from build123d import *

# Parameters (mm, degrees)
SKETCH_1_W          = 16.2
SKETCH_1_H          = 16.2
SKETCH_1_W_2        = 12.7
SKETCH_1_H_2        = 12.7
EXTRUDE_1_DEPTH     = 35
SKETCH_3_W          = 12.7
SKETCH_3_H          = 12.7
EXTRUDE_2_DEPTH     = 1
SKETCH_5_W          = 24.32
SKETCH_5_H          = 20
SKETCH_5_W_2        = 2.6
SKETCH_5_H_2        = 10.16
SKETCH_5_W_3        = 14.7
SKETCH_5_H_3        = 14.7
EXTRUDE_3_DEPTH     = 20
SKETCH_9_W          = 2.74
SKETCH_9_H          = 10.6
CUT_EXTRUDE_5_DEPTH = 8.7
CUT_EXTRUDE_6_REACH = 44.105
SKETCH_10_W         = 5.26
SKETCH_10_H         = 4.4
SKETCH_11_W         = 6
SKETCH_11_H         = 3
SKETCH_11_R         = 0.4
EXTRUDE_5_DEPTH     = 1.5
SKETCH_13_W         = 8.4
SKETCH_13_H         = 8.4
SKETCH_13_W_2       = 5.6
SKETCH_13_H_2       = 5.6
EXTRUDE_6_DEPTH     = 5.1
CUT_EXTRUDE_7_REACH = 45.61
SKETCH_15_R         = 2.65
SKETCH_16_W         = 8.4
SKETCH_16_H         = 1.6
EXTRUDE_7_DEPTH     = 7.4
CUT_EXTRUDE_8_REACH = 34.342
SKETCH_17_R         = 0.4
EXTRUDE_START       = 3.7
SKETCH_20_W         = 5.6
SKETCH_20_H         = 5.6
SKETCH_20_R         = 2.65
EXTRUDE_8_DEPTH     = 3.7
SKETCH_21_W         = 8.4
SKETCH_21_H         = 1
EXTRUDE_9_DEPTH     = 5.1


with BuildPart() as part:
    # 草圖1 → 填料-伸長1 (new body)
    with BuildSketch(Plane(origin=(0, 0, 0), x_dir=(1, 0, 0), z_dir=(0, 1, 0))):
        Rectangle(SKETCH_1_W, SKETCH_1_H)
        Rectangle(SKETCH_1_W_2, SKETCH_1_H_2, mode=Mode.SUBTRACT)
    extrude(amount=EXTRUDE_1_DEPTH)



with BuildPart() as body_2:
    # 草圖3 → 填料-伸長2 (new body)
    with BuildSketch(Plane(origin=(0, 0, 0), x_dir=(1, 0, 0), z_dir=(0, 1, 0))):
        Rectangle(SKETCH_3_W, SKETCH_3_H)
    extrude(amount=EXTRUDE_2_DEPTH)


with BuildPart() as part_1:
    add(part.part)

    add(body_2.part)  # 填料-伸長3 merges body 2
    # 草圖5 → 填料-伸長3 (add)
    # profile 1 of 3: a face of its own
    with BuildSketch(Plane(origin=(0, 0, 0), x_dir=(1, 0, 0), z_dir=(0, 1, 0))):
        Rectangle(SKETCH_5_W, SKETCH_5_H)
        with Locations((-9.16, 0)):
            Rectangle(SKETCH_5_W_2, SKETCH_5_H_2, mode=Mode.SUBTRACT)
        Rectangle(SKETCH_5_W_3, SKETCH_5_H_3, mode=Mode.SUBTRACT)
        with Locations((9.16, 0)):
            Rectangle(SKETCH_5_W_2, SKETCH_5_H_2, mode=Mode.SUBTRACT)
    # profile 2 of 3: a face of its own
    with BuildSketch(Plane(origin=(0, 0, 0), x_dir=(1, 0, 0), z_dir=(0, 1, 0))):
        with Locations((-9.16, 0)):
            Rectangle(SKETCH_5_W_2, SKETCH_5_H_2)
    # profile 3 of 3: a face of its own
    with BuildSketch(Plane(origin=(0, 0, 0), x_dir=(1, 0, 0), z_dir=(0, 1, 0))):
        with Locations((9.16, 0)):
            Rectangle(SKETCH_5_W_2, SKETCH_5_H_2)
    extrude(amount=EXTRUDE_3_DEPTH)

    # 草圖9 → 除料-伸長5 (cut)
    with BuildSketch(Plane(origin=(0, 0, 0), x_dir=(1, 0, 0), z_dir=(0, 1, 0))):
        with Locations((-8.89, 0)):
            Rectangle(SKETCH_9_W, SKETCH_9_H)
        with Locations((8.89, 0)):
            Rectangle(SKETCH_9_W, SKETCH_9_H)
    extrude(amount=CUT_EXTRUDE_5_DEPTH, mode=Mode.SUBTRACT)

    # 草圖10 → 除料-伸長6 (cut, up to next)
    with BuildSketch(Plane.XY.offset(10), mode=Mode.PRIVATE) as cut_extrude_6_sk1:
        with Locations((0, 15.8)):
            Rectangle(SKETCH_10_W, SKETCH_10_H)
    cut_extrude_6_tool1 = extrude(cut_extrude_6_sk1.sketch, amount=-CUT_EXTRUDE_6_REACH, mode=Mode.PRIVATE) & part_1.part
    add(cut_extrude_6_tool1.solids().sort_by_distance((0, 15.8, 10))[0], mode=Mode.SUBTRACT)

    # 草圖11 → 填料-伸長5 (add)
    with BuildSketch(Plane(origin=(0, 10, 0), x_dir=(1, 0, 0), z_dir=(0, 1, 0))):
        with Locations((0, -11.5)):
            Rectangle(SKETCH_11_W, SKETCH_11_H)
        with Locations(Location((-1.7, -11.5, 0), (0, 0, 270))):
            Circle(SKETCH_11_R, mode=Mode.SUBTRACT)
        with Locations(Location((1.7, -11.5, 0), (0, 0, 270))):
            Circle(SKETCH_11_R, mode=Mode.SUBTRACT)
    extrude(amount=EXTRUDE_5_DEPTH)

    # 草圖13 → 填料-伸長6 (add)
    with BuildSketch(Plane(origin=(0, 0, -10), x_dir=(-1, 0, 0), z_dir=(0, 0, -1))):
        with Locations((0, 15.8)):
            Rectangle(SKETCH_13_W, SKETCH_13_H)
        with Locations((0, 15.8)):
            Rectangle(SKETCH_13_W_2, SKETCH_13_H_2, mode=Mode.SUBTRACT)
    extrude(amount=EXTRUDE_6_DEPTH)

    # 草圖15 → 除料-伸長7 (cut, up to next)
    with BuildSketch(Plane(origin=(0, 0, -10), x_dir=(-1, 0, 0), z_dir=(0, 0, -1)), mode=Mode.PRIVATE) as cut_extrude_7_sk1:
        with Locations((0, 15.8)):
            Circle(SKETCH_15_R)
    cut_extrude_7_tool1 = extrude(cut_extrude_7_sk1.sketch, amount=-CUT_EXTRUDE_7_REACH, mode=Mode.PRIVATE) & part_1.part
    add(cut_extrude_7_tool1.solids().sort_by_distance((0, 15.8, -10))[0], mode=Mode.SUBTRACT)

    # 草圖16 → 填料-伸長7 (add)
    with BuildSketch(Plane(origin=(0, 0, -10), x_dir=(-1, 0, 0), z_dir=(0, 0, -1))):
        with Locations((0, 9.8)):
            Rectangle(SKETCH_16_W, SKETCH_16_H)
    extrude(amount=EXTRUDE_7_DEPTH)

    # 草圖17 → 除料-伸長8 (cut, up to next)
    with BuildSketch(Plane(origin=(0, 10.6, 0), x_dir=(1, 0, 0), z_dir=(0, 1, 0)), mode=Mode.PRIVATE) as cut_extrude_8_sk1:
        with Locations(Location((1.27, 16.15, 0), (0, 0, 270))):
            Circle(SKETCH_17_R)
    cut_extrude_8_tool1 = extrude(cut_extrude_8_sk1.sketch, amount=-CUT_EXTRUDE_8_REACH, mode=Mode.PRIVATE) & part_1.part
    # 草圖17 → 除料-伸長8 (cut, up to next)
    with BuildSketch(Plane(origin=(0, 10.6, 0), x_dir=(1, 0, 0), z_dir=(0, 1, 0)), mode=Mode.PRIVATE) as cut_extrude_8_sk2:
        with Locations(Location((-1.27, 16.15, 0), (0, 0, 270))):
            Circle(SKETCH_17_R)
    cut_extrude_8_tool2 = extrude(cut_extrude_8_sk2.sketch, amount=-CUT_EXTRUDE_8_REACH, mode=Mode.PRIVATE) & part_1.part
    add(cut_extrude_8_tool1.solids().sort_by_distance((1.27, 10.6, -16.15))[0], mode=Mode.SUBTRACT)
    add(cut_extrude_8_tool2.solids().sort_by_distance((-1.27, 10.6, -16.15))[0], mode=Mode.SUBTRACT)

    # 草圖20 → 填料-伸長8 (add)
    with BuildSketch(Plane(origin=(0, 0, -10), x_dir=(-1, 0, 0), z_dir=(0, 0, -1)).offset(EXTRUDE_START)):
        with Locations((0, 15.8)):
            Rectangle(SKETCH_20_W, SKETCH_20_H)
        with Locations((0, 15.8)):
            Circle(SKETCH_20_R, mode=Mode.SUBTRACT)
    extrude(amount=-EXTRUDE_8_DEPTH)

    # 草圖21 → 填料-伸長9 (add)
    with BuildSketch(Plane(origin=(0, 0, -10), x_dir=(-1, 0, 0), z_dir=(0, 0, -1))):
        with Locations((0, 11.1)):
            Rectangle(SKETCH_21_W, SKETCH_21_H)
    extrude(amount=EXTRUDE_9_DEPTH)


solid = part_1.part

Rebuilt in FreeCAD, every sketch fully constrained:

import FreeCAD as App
import Part
import Sketcher

V = App.Vector


def add_polygon(sketch, points):
    """Adds a closed chain of lines whose ends are joined by coincident constraints."""
    first, n = sketch.GeometryCount, len(points)
    for a, b in zip(points, points[1:] + points[:1]):
        sketch.addGeometry(Part.LineSegment(App.Vector(*a, 0), App.Vector(*b, 0)), False)
    for i in range(n):
        sketch.addConstraint(Sketcher.Constraint("Coincident", first + i, 2, first + (i + 1) % n, 1))

doc = App.newDocument("Part")
body = doc.addObject("PartDesign::Body", "Body")

# Sketch on XZ plane
sketch1 = doc.addObject("Sketcher::SketchObject", "Sketch")
body.addObject(sketch1)
sketch1.AttachmentSupport = (doc.XZ_Plane, [""])
sketch1.MapMode = "FlatFace"
add_polygon(sketch1, [(-8, -8), (-8, 8), (8, 8), (8, -8)])  # lines 0-3
add_polygon(sketch1, [(6, 6), (-6, 6), (-6, -6), (6, -6)])  # lines 4-7
sketch1.addConstraint(Sketcher.Constraint("Vertical", 0))
sketch1.addConstraint(Sketcher.Constraint("Horizontal", 1))
sketch1.addConstraint(Sketcher.Constraint("Vertical", 2))
sketch1.addConstraint(Sketcher.Constraint("Horizontal", 3))
sketch1.addConstraint(Sketcher.Constraint("Horizontal", 4))
sketch1.addConstraint(Sketcher.Constraint("Vertical", 5))
sketch1.addConstraint(Sketcher.Constraint("Horizontal", 6))
sketch1.addConstraint(Sketcher.Constraint("Vertical", 7))
sketch1.addConstraint(Sketcher.Constraint("Symmetric", 0, 2, 2, 2, -1, 1))
sketch1.addConstraint(Sketcher.Constraint("Symmetric", 4, 2, 6, 2, -1, 1))
sketch1.addConstraint(Sketcher.Constraint("Equal", 3, 0))
sketch1.addConstraint(Sketcher.Constraint("Equal", 6, 5))
sketch1.addConstraint(Sketcher.Constraint("DistanceX", 1, 1, 1, 2, 16.2))
sketch1.addConstraint(Sketcher.Constraint("DistanceX", 4, 2, 4, 1, 12.7))
pad1 = doc.addObject("PartDesign::Pad", "Pad")
body.addObject(pad1)
pad1.Profile = sketch1
pad1.Length = 35
pad1.Reversed = True
body2 = doc.addObject("PartDesign::Body", "Body001")

# Sketch on XZ plane
sketch2 = doc.addObject("Sketcher::SketchObject", "Sketch001")
body2.addObject(sketch2)
sketch2.AttachmentSupport = (doc.getObject("XZ_Plane001"), [""])
sketch2.MapMode = "FlatFace"
add_polygon(sketch2, [(-6, -6), (-6, 6), (6, 6), (6, -6)])  # lines 0-3
sketch2.addConstraint(Sketcher.Constraint("Vertical", 0))
sketch2.addConstraint(Sketcher.Constraint("Horizontal", 1))
sketch2.addConstraint(Sketcher.Constraint("Vertical", 2))
sketch2.addConstraint(Sketcher.Constraint("Horizontal", 3))
sketch2.addConstraint(Sketcher.Constraint("Symmetric", 0, 2, 2, 2, -1, 1))
sketch2.addConstraint(Sketcher.Constraint("Equal", 3, 0))
sketch2.addConstraint(Sketcher.Constraint("DistanceX", 1, 1, 1, 2, 12.7))
pad2 = doc.addObject("PartDesign::Pad", "Pad001")
body2.addObject(pad2)
pad2.Profile = sketch2
pad2.Length = 1
pad2.Reversed = True
doc.recompute()

boolean = doc.addObject("PartDesign::Boolean", "Boolean")
body.addObject(boolean)
boolean.Type = "Fuse"
boolean.addObjects([body2])

# Sketch on XZ plane
sketch3 = doc.addObject("Sketcher::SketchObject", "Sketch002")
body.addObject(sketch3)
sketch3.AttachmentSupport = (doc.XZ_Plane, [""])
sketch3.MapMode = "FlatFace"
add_polygon(sketch3, [(-12, -10), (-12, 10), (12, 10), (12, -10)])  # lines 0-3
add_polygon(sketch3, [(7, 7), (-7, 7), (-7, -7), (7, -7)])  # lines 4-7
sketch3.addConstraint(Sketcher.Constraint("Vertical", 0))
sketch3.addConstraint(Sketcher.Constraint("Horizontal", 1))
sketch3.addConstraint(Sketcher.Constraint("Vertical", 2))
sketch3.addConstraint(Sketcher.Constraint("Horizontal", 3))
sketch3.addConstraint(Sketcher.Constraint("Horizontal", 4))
sketch3.addConstraint(Sketcher.Constraint("Vertical", 5))
sketch3.addConstraint(Sketcher.Constraint("Horizontal", 6))
sketch3.addConstraint(Sketcher.Constraint("Vertical", 7))
sketch3.addConstraint(Sketcher.Constraint("Symmetric", 0, 2, 2, 2, -1, 1))
sketch3.addConstraint(Sketcher.Constraint("Symmetric", 4, 2, 6, 2, -1, 1))
sketch3.addConstraint(Sketcher.Constraint("Equal", 6, 5))
sketch3.addConstraint(Sketcher.Constraint("DistanceY", 0, 1, 0, 2, 20.0))
sketch3.addConstraint(Sketcher.Constraint("DistanceX", 4, 2, 4, 1, 14.7))
sketch3.addConstraint(Sketcher.Constraint("DistanceX", 1, 1, 1, 2, 24.32))
pad3 = doc.addObject("PartDesign::Pad", "Pad002")
body.addObject(pad3)
pad3.Profile = sketch3
pad3.Length = 20
pad3.Reversed = True

# Sketch on XZ plane
sketch4 = doc.addObject("Sketcher::SketchObject", "Sketch003")
body.addObject(sketch4)
sketch4.AttachmentSupport = (doc.XZ_Plane, [""])
sketch4.MapMode = "FlatFace"
add_polygon(sketch4, [(-10.3, -5.3), (-10.3, 5.3), (-7.5, 5.3), (-7.5, -5.3)])  # lines 0-3
add_polygon(sketch4, [(7.5, -5.3), (7.5, 5.3), (10.3, 5.3), (10.3, -5.3)])  # lines 4-7
sketch4.addConstraint(Sketcher.Constraint("Vertical", 0))
sketch4.addConstraint(Sketcher.Constraint("Horizontal", 1))
sketch4.addConstraint(Sketcher.Constraint("Vertical", 2))
sketch4.addConstraint(Sketcher.Constraint("Horizontal", 3))
sketch4.addConstraint(Sketcher.Constraint("Vertical", 4))
sketch4.addConstraint(Sketcher.Constraint("Horizontal", 5))
sketch4.addConstraint(Sketcher.Constraint("Vertical", 6))
sketch4.addConstraint(Sketcher.Constraint("Horizontal", 7))
sketch4.addConstraint(Sketcher.Constraint("Symmetric", 2, 2, 4, 2, -1, 1))
sketch4.addConstraint(Sketcher.Constraint("Symmetric", 0, 2, 6, 2, -1, 1))
sketch4.addConstraint(Sketcher.Constraint("Horizontal", 1, 2, 4, 2))
sketch4.addConstraint(Sketcher.Constraint("DistanceY", 0, 1, 0, 2, 10.6))
sketch4.addConstraint(Sketcher.Constraint("DistanceX", 1, 1, 1, 2, 2.74))
sketch4.addConstraint(Sketcher.Constraint("DistanceX", 0, 2, -1, 1, 10.26))
pocket1 = doc.addObject("PartDesign::Pocket", "Pocket")
body.addObject(pocket1)
pocket1.Profile = sketch4
pocket1.Length = 8.7

# Sketch on XY plane
sketch5 = doc.addObject("Sketcher::SketchObject", "Sketch004")
body.addObject(sketch5)
sketch5.AttachmentSupport = (doc.XY_Plane, [""])
sketch5.MapMode = "FlatFace"
sketch5.AttachmentOffset = App.Placement(V(0, 0, 10), App.Rotation())
add_polygon(sketch5, [(-2.6, 18), (-2.6, 13.6), (2.6, 13.6), (2.6, 18)])  # lines 0-3
sketch5.addConstraint(Sketcher.Constraint("Vertical", 0))
sketch5.addConstraint(Sketcher.Constraint("Horizontal", 1))
sketch5.addConstraint(Sketcher.Constraint("Vertical", 2))
sketch5.addConstraint(Sketcher.Constraint("Horizontal", 3))
sketch5.addConstraint(Sketcher.Constraint("DistanceY", 0, 2, 0, 1, 4.4))
sketch5.addConstraint(Sketcher.Constraint("DistanceY", -1, 1, 2, 2, 18.0))
sketch5.addConstraint(Sketcher.Constraint("DistanceX", 1, 1, 1, 2, 5.26))
sketch5.addConstraint(Sketcher.Constraint("DistanceX", 0, 2, -1, 1, 2.63))
pocket2 = doc.addObject("PartDesign::Pocket", "Pocket001")
body.addObject(pocket2)
pocket2.Profile = sketch5
pocket2.Type = "UpToFirst"

# Sketch on XZ plane
sketch6 = doc.addObject("Sketcher::SketchObject", "Sketch005")
body.addObject(sketch6)
sketch6.AttachmentSupport = (doc.XZ_Plane, [""])
sketch6.MapMode = "FlatFace"
sketch6.AttachmentOffset = App.Placement(V(0, 0, -10), App.Rotation())
add_polygon(sketch6, [(-3, 10), (-3, 13), (3, 13), (3, 10)])  # lines 0-3
sketch6.addGeometry(Part.Circle(V(-1.7, 11.5, 0), V(0, 0, 1), 0.4), False)  # 4
sketch6.addGeometry(Part.Circle(V(1.7, 11.5, 0), V(0, 0, 1), 0.4), False)  # 5
sketch6.addConstraint(Sketcher.Constraint("Vertical", 0))
sketch6.addConstraint(Sketcher.Constraint("Horizontal", 1))
sketch6.addConstraint(Sketcher.Constraint("Vertical", 2))
sketch6.addConstraint(Sketcher.Constraint("Horizontal", 3))
sketch6.addConstraint(Sketcher.Constraint("Equal", 4, 5))
sketch6.addConstraint(Sketcher.Constraint("Symmetric", 4, 3, 5, 3, -2))
sketch6.addConstraint(Sketcher.Constraint("Diameter", 4, 0.8))
sketch6.addConstraint(Sketcher.Constraint("DistanceX", 1, 1, 1, 2, 6.0))
sketch6.addConstraint(Sketcher.Constraint("DistanceY", 0, 1, 0, 2, 3.0))
sketch6.addConstraint(Sketcher.Constraint("DistanceX", 0, 2, -1, 1, 3.0))
sketch6.addConstraint(Sketcher.Constraint("DistanceY", -1, 1, 0, 2, 13.0))
sketch6.addConstraint(Sketcher.Constraint("DistanceX", 4, 3, -1, 1, 1.7))
sketch6.addConstraint(Sketcher.Constraint("DistanceY", -1, 1, 4, 3, 11.5))
pad4 = doc.addObject("PartDesign::Pad", "Pad003")
body.addObject(pad4)
pad4.Profile = sketch6
pad4.Length = 1.5
pad4.Reversed = True

# Sketch on XY plane
sketch7 = doc.addObject("Sketcher::SketchObject", "Sketch006")
body.addObject(sketch7)
sketch7.AttachmentSupport = (doc.XY_Plane, [""])
sketch7.MapMode = "FlatFace"
sketch7.AttachmentOffset = App.Placement(V(0, 0, -10), App.Rotation())
add_polygon(sketch7, [(4, 20), (4, 12), (-4, 12), (-4, 20)])  # lines 0-3
add_polygon(sketch7, [(-3, 13), (3, 13), (3, 19), (-3, 19)])  # lines 4-7
sketch7.addConstraint(Sketcher.Constraint("Vertical", 0))
sketch7.addConstraint(Sketcher.Constraint("Horizontal", 1))
sketch7.addConstraint(Sketcher.Constraint("Vertical", 2))
sketch7.addConstraint(Sketcher.Constraint("Horizontal", 3))
sketch7.addConstraint(Sketcher.Constraint("Horizontal", 4))
sketch7.addConstraint(Sketcher.Constraint("Vertical", 5))
sketch7.addConstraint(Sketcher.Constraint("Horizontal", 6))
sketch7.addConstraint(Sketcher.Constraint("Vertical", 7))
sketch7.addConstraint(Sketcher.Constraint("Equal", 3, 0))
sketch7.addConstraint(Sketcher.Constraint("Equal", 6, 5))
sketch7.addConstraint(Sketcher.Constraint("DistanceX", 1, 2, 1, 1, 8.4))
sketch7.addConstraint(Sketcher.Constraint("DistanceX", 4, 1, 4, 2, 5.6))
sketch7.addConstraint(Sketcher.Constraint("DistanceY", -1, 1, 2, 2, 20.0))
sketch7.addConstraint(Sketcher.Constraint("DistanceY", -1, 1, 4, 2, 13.0))
sketch7.addConstraint(Sketcher.Constraint("DistanceX", 1, 2, 4, 2, 7.0))
sketch7.addConstraint(Sketcher.Constraint("DistanceX", -1, 1, 0, 2, 4.2))
pad5 = doc.addObject("PartDesign::Pad", "Pad004")
body.addObject(pad5)
pad5.Profile = sketch7
pad5.Length = 5.1
pad5.Reversed = True

# Sketch on XY plane
sketch8 = doc.addObject("Sketcher::SketchObject", "Sketch007")
body.addObject(sketch8)
sketch8.AttachmentSupport = (doc.XY_Plane, [""])
sketch8.MapMode = "FlatFace"
sketch8.AttachmentOffset = App.Placement(V(0, 0, -10), App.Rotation())
sketch8.addGeometry(Part.Circle(V(0, 15.8, 0), V(0, 0, 1), 2.6), False)
sketch8.addConstraint(Sketcher.Constraint("PointOnObject", 0, 3, -2))
sketch8.addConstraint(Sketcher.Constraint("Diameter", 0, 5.3))
sketch8.addConstraint(Sketcher.Constraint("DistanceY", -1, 1, 0, 3, 15.8))
pocket3 = doc.addObject("PartDesign::Pocket", "Pocket002")
body.addObject(pocket3)
pocket3.Profile = sketch8
pocket3.Type = "UpToFirst"
pocket3.Reversed = True

# Sketch on XY plane
sketch9 = doc.addObject("Sketcher::SketchObject", "Sketch008")
body.addObject(sketch9)
sketch9.AttachmentSupport = (doc.XY_Plane, [""])
sketch9.MapMode = "FlatFace"
sketch9.AttachmentOffset = App.Placement(V(0, 0, -10), App.Rotation())
add_polygon(sketch9, [(4.2, 10.6), (4.2, 9), (-4.2, 9), (-4.2, 10.6)])  # lines 0-3
sketch9.addConstraint(Sketcher.Constraint("Vertical", 0))
sketch9.addConstraint(Sketcher.Constraint("Horizontal", 1))
sketch9.addConstraint(Sketcher.Constraint("Vertical", 2))
sketch9.addConstraint(Sketcher.Constraint("Horizontal", 3))
sketch9.addConstraint(Sketcher.Constraint("DistanceX", 1, 2, 1, 1, 8.4))
sketch9.addConstraint(Sketcher.Constraint("DistanceY", 0, 2, 0, 1, 1.6))
sketch9.addConstraint(Sketcher.Constraint("DistanceY", -1, 1, 0, 2, 9.0))
sketch9.addConstraint(Sketcher.Constraint("DistanceX", -1, 1, 0, 2, 4.2))
pad6 = doc.addObject("PartDesign::Pad", "Pad005")
body.addObject(pad6)
pad6.Profile = sketch9
pad6.Length = 7.4
pad6.Reversed = True

# Sketch on XZ plane
sketch10 = doc.addObject("Sketcher::SketchObject", "Sketch009")
body.addObject(sketch10)
sketch10.AttachmentSupport = (doc.XZ_Plane, [""])
sketch10.MapMode = "FlatFace"
sketch10.AttachmentOffset = App.Placement(V(0, 0, -10.6), App.Rotation())
sketch10.addGeometry(Part.Circle(V(1.27, -16.15, 0), V(0, 0, 1), 0.4), False)
sketch10.addConstraint(Sketcher.Constraint("Diameter", 0, 0.8))
sketch10.addConstraint(Sketcher.Constraint("DistanceX", -1, 1, 0, 3, 1.27))
sketch10.addConstraint(Sketcher.Constraint("DistanceY", 0, 3, -1, 1, 16.15))
pocket4 = doc.addObject("PartDesign::Pocket", "Pocket003")
body.addObject(pocket4)
pocket4.Profile = sketch10
pocket4.Type = "UpToFirst"
pocket4.Reversed = True

# Sketch on XZ plane
sketch11 = doc.addObject("Sketcher::SketchObject", "Sketch010")
body.addObject(sketch11)
sketch11.AttachmentSupport = (doc.XZ_Plane, [""])
sketch11.MapMode = "FlatFace"
sketch11.AttachmentOffset = App.Placement(V(0, 0, -10.6), App.Rotation())
sketch11.addGeometry(Part.Circle(V(-1.27, -16.15, 0), V(0, 0, 1), 0.4), False)
sketch11.addConstraint(Sketcher.Constraint("Diameter", 0, 0.8))
sketch11.addConstraint(Sketcher.Constraint("DistanceX", 0, 3, -1, 1, 1.27))
sketch11.addConstraint(Sketcher.Constraint("DistanceY", 0, 3, -1, 1, 16.15))
pocket5 = doc.addObject("PartDesign::Pocket", "Pocket004")
body.addObject(pocket5)
pocket5.Profile = sketch11
pocket5.Type = "UpToFirst"
pocket5.Reversed = True

# Sketch on XY plane
sketch12 = doc.addObject("Sketcher::SketchObject", "Sketch011")
body.addObject(sketch12)
sketch12.AttachmentSupport = (doc.XY_Plane, [""])
sketch12.MapMode = "FlatFace"
sketch12.AttachmentOffset = App.Placement(V(0, 0, -13.7), App.Rotation())
add_polygon(sketch12, [(2.8, 18.6), (2.8, 13), (-2.8, 13), (-2.8, 18.6)])  # lines 0-3
sketch12.addGeometry(Part.Circle(V(0, 15.8, 0), V(0, 0, 1), 2.6), False)  # 4
sketch12.addConstraint(Sketcher.Constraint("Vertical", 0))
sketch12.addConstraint(Sketcher.Constraint("Horizontal", 1))
sketch12.addConstraint(Sketcher.Constraint("Vertical", 2))
sketch12.addConstraint(Sketcher.Constraint("Horizontal", 3))
sketch12.addConstraint(Sketcher.Constraint("PointOnObject", 4, 3, -2))
sketch12.addConstraint(Sketcher.Constraint("Equal", 3, 0))
sketch12.addConstraint(Sketcher.Constraint("Diameter", 4, 5.3))
sketch12.addConstraint(Sketcher.Constraint("DistanceX", 1, 2, 1, 1, 5.6))
sketch12.addConstraint(Sketcher.Constraint("DistanceY", -1, 1, 0, 2, 13.0))
sketch12.addConstraint(Sketcher.Constraint("DistanceY", -1, 1, 4, 3, 15.8))
sketch12.addConstraint(Sketcher.Constraint("DistanceX", -1, 1, 0, 2, 2.8))
pad7 = doc.addObject("PartDesign::Pad", "Pad006")
body.addObject(pad7)
pad7.Profile = sketch12
pad7.Length = 3.7

# Sketch on XY plane
sketch13 = doc.addObject("Sketcher::SketchObject", "Sketch012")
body.addObject(sketch13)
sketch13.AttachmentSupport = (doc.XY_Plane, [""])
sketch13.MapMode = "FlatFace"
sketch13.AttachmentOffset = App.Placement(V(0, 0, -10), App.Rotation())
add_polygon(sketch13, [(4.2, 11.6), (4.2, 10.6), (-4.2, 10.6), (-4.2, 11.6)])  # lines 0-3
sketch13.addConstraint(Sketcher.Constraint("Vertical", 0))
sketch13.addConstraint(Sketcher.Constraint("Horizontal", 1))
sketch13.addConstraint(Sketcher.Constraint("Vertical", 2))
sketch13.addConstraint(Sketcher.Constraint("Horizontal", 3))
sketch13.addConstraint(Sketcher.Constraint("DistanceY", 0, 2, 0, 1, 1.0))
sketch13.addConstraint(Sketcher.Constraint("DistanceX", 1, 2, 1, 1, 8.4))
sketch13.addConstraint(Sketcher.Constraint("DistanceX", -1, 1, 0, 2, 4.2))
sketch13.addConstraint(Sketcher.Constraint("DistanceY", -1, 1, 0, 2, 10.6))
pad8 = doc.addObject("PartDesign::Pad", "Pad007")
body.addObject(pad8)
pad8.Profile = sketch13
pad8.Length = 5.1
pad8.Reversed = True

doc.recompute()
